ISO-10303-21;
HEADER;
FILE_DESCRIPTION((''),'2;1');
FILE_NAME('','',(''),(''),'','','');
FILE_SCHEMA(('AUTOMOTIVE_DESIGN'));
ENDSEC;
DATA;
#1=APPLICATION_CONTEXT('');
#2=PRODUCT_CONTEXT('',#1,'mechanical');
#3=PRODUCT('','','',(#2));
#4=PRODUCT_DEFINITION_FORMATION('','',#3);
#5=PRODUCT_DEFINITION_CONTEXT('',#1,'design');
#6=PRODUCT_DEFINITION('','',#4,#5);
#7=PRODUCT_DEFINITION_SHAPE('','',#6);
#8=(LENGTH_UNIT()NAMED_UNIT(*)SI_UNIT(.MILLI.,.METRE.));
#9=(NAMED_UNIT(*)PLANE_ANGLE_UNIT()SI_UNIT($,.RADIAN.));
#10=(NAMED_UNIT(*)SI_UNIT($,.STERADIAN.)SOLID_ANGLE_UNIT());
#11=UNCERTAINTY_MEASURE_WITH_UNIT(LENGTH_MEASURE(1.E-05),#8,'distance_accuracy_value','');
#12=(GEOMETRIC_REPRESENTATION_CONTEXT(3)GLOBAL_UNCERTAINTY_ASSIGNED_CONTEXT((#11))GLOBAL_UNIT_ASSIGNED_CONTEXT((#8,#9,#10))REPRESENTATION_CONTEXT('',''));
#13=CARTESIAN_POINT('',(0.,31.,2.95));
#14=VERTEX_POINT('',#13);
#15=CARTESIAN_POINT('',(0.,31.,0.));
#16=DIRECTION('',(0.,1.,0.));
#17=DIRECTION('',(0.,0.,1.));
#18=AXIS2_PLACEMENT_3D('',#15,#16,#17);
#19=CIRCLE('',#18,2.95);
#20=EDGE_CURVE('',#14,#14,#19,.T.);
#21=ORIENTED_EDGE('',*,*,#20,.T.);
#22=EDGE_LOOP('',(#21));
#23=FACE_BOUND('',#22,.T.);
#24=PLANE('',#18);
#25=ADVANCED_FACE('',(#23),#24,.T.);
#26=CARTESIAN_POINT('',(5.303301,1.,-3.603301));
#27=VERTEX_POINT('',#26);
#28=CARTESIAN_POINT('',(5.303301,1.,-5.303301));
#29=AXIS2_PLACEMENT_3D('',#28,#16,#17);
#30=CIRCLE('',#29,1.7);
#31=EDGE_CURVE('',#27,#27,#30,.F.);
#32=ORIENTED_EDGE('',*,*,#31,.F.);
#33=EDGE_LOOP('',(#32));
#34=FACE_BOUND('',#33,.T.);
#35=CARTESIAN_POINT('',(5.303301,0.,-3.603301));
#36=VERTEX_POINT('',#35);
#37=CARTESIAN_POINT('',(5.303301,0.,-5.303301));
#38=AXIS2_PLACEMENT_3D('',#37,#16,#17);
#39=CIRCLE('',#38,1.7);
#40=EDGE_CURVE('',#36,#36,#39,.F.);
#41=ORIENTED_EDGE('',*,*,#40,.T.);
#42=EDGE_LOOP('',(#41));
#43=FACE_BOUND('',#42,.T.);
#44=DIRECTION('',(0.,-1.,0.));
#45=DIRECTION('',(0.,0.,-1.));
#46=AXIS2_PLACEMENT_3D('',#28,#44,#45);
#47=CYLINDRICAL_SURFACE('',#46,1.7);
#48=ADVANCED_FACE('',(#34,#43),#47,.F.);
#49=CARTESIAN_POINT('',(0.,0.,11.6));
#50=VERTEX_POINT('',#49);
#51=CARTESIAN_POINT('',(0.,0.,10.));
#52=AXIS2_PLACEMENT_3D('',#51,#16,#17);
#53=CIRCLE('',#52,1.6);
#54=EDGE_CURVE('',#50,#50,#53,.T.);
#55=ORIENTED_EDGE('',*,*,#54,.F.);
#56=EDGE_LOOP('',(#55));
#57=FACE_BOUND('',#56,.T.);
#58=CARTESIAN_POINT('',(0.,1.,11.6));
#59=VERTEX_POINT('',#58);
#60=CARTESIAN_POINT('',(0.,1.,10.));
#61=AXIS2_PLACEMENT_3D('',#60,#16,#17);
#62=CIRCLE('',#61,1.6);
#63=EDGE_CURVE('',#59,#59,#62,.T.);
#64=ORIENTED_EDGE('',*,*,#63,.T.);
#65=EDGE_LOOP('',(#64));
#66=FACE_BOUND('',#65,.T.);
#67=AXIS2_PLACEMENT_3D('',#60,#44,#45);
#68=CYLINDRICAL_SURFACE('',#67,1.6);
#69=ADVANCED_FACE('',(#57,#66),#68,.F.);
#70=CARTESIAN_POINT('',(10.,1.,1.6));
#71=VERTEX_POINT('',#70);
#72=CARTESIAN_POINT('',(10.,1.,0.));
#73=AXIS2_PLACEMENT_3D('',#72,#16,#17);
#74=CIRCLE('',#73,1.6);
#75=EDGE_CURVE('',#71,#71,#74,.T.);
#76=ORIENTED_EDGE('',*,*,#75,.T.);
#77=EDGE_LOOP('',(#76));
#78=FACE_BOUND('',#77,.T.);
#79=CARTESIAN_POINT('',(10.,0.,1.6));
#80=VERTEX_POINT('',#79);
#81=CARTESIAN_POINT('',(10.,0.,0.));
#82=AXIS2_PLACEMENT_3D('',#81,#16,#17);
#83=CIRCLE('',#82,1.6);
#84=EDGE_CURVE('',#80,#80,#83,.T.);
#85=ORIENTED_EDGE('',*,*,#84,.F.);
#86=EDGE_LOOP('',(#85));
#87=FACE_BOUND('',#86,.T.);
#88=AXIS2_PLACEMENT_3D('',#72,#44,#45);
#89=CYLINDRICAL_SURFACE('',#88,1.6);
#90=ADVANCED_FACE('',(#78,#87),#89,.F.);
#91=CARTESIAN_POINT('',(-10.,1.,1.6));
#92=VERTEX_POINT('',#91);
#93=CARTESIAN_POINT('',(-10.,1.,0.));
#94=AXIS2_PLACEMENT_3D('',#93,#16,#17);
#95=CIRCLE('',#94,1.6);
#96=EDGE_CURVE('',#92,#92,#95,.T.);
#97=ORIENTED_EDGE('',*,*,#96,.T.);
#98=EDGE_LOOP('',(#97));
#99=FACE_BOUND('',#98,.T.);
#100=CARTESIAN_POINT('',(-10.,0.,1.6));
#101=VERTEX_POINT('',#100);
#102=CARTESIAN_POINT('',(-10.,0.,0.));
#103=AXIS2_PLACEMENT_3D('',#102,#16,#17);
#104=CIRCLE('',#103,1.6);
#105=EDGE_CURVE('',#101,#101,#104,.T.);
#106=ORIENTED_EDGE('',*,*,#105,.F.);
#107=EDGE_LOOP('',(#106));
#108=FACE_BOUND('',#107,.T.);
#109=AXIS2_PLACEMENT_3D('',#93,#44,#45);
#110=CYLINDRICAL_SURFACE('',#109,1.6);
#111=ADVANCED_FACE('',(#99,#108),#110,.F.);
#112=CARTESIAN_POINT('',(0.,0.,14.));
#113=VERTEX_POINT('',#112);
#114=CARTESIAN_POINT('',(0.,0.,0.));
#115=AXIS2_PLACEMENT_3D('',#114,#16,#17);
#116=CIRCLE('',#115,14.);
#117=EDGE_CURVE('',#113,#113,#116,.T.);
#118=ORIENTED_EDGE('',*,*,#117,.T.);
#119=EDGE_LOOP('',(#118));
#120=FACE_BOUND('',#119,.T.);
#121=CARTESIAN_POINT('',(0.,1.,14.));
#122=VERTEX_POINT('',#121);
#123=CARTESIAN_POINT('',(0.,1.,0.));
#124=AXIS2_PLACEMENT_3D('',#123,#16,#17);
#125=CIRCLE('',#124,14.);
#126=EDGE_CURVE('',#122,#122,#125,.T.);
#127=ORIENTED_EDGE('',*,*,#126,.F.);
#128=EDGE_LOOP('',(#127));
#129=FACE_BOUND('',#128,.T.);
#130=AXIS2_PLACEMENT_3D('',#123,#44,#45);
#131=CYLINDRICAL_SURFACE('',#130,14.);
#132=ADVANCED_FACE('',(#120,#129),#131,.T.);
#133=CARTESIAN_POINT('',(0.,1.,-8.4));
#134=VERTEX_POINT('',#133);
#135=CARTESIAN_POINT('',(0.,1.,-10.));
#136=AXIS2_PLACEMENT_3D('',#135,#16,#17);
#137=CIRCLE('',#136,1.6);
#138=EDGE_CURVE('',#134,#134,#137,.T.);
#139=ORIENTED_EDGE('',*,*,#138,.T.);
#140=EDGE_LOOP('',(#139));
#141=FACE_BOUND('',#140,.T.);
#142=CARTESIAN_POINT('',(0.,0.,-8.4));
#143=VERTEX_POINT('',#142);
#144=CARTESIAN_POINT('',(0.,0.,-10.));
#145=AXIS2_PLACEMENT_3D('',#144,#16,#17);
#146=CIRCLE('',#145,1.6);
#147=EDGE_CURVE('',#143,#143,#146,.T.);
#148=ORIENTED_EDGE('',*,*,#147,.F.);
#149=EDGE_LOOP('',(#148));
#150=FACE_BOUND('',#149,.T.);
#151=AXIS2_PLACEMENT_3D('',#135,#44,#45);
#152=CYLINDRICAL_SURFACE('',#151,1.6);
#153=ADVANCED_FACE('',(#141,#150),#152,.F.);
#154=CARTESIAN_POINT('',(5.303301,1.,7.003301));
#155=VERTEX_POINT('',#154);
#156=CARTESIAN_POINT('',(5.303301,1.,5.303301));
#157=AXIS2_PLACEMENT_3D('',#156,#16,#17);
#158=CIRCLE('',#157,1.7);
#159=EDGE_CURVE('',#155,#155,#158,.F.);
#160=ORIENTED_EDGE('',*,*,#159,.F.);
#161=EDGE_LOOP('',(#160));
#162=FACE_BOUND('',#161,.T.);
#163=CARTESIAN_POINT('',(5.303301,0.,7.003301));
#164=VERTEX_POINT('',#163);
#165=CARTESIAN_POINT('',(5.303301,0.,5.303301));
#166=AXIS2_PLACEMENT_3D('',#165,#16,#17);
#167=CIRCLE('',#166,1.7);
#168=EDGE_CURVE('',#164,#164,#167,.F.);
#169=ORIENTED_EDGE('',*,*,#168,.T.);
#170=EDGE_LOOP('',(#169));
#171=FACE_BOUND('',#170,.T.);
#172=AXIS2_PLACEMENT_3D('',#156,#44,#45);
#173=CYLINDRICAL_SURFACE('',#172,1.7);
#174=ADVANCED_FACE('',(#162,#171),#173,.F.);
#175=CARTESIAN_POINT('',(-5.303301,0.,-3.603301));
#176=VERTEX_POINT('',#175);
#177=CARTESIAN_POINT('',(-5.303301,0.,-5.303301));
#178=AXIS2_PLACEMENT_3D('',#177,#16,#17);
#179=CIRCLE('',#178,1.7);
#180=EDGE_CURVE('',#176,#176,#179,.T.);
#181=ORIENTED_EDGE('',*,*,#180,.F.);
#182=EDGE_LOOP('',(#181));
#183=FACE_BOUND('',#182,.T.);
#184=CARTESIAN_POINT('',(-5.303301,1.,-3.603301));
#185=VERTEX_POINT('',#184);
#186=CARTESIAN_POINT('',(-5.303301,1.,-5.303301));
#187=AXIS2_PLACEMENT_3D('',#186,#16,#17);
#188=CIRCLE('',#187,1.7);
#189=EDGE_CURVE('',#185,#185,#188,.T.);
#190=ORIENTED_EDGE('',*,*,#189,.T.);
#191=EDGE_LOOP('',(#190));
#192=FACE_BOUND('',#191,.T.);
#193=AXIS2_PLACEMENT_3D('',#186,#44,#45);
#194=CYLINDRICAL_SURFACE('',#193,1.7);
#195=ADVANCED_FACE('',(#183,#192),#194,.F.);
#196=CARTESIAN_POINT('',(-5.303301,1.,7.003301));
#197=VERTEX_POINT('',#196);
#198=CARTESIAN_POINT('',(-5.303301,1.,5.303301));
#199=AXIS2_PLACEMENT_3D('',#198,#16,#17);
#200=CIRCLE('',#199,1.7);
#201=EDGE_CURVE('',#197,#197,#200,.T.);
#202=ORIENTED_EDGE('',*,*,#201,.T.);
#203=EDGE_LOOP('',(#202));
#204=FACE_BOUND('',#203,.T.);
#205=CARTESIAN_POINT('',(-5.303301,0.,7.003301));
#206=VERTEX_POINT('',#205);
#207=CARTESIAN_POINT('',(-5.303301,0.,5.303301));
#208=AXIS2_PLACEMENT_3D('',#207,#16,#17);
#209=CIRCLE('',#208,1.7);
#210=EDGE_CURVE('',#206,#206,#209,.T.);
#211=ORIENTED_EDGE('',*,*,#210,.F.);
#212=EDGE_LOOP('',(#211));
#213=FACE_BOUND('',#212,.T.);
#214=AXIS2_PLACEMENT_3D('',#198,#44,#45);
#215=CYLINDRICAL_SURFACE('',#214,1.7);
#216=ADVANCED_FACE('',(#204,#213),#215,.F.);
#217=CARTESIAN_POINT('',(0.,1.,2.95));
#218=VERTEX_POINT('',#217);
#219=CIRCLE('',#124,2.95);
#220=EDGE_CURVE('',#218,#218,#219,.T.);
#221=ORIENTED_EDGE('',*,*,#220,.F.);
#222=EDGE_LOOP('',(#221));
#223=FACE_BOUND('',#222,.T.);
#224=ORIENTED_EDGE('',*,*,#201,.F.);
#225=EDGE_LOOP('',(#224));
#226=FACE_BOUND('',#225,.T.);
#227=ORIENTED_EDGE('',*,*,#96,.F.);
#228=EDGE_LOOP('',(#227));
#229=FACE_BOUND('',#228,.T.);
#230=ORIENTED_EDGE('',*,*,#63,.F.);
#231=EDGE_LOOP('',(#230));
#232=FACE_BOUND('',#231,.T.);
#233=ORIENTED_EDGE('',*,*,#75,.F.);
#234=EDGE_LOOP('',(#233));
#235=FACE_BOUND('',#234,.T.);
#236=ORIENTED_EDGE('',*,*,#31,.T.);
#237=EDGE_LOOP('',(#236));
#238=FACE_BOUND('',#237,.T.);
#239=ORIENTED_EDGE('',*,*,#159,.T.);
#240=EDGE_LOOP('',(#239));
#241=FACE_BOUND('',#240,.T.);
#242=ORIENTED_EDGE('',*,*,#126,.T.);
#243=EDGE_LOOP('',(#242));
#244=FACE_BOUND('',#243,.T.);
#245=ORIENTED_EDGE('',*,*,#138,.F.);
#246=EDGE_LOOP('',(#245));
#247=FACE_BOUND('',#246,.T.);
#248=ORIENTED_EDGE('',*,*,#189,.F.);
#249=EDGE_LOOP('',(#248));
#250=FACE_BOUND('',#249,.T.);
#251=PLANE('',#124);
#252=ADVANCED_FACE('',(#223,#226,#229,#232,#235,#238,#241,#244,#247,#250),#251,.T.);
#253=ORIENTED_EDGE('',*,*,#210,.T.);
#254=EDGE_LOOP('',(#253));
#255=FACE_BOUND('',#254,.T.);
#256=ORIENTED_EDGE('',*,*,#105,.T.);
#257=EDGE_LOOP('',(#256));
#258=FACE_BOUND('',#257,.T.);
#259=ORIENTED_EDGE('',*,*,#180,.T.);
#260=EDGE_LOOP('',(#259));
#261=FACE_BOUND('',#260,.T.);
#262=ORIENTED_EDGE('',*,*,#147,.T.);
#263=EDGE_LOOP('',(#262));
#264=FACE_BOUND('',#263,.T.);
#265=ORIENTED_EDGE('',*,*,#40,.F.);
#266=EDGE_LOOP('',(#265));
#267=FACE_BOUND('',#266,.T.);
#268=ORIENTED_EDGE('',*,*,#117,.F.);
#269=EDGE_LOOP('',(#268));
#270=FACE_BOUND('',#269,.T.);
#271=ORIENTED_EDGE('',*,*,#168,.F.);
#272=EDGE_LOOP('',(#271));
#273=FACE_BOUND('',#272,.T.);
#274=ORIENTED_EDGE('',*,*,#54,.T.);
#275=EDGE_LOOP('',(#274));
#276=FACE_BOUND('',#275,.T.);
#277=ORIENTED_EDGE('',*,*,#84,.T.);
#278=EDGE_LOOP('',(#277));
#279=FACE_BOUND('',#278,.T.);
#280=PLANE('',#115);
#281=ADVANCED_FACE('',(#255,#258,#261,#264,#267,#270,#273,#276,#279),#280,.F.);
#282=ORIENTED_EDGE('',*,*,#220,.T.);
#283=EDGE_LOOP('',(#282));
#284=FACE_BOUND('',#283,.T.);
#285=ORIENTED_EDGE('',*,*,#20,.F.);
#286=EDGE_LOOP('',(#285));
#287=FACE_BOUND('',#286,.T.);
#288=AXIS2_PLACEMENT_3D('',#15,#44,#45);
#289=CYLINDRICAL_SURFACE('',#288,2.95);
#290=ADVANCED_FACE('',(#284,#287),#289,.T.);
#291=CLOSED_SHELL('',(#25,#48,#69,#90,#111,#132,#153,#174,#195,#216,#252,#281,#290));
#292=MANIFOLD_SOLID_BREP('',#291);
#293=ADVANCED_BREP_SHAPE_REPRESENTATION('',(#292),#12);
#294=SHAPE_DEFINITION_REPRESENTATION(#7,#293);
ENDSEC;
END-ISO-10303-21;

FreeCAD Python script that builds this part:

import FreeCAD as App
import Part
import Sketcher

doc = App.newDocument("Part")
body = doc.addObject("PartDesign::Body", "Body")

sketch1 = body.newObject("Sketcher::SketchObject", "Sketch")
sketch1.AttachmentSupport = (doc.getObject("XZ_Plane"), [""])
sketch1.MapMode = "FlatFace"
sketch1.addGeometry([
    Part.Circle(App.Vector(0, 0, 0), App.Vector(0, 0, 1), 14),
    Part.Circle(App.Vector(0, -10, 0), App.Vector(0, 0, 1), 1.6),
    Part.Circle(App.Vector(-5.303301, -5.303301, 0), App.Vector(0, 0, 1), 1.7),
    Part.Circle(App.Vector(-10, 0, 0), App.Vector(0, 0, 1), 1.6),
    Part.Circle(App.Vector(-5.303301, 5.303301, 0), App.Vector(0, 0, 1), 1.7),
    Part.Circle(App.Vector(5.303301, -5.303301, 0), App.Vector(0, 0, 1), 1.7),
    Part.Circle(App.Vector(10, 0, 0), App.Vector(0, 0, 1), 1.6),
    Part.Circle(App.Vector(0, 0, 0), App.Vector(0, 0, 1), 2.95),
    Part.Circle(App.Vector(5.303301, 5.303301, 0), App.Vector(0, 0, 1), 1.7),
    Part.Circle(App.Vector(0, 10, 0), App.Vector(0, 0, 1), 1.6),
], False)
sketch1.addConstraint([
    Sketcher.Constraint("Coincident", 0, 3, -1, 1),
    Sketcher.Constraint("Coincident", 7, 3, -1, 1),
    Sketcher.Constraint("Equal", 1, 3),
    Sketcher.Constraint("Equal", 2, 4),
    Sketcher.Constraint("Equal", 4, 5),
    Sketcher.Constraint("Equal", 3, 6),
    Sketcher.Constraint("Equal", 5, 8),
    Sketcher.Constraint("Equal", 6, 9),
    Sketcher.Constraint("Symmetric", 4, 3, 5, 3, -1, 1),
    Sketcher.Constraint("Symmetric", 3, 3, 6, 3, -1, 1),
    Sketcher.Constraint("Symmetric", 2, 3, 8, 3, -1, 1),
    Sketcher.Constraint("Symmetric", 1, 3, 9, 3, -1, 1),
    Sketcher.Constraint("Symmetric", 2, 3, 5, 3, -2),
    Sketcher.Constraint("PointOnObject", 1, 3, -2),
    Sketcher.Constraint("PointOnObject", 3, 3, -1),
    Sketcher.Constraint("Diameter", 0, 28.0),
    Sketcher.Constraint("Diameter", 1, 3.2),
    Sketcher.Constraint("Diameter", 2, 3.4),
    Sketcher.Constraint("Diameter", 7, 5.9),
    Sketcher.Constraint("DistanceY", 1, 3, -1, 1, 10.0),
    Sketcher.Constraint("DistanceX", 3, 3, -1, 1, 10.0),
    Sketcher.Constraint("DistanceX", 2, 3, -1, 1, 5.303301),
    Sketcher.Constraint("DistanceY", 2, 3, -1, 1, 5.303301),
])
pad1 = body.newObject("PartDesign::Pad", "Pad")
pad1.Profile = sketch1
pad1.Length = 1
pad1.Reversed = True

sketch2 = body.newObject("Sketcher::SketchObject", "Sketch001")
sketch2.AttachmentSupport = (doc.getObject("XZ_Plane"), [""])
sketch2.MapMode = "FlatFace"
sketch2.addGeometry(Part.Circle(App.Vector(0, 0, 0), App.Vector(0, 0, 1), 2.95), False)
sketch2.addConstraint([
    Sketcher.Constraint("Coincident", 0, 3, -1, 1),
    Sketcher.Constraint("Diameter", 0, 5.9),
])
pad2 = body.newObject("PartDesign::Pad", "Pad001")
pad2.Profile = sketch2
pad2.Length = 31
pad2.Reversed = True

doc.recompute()
